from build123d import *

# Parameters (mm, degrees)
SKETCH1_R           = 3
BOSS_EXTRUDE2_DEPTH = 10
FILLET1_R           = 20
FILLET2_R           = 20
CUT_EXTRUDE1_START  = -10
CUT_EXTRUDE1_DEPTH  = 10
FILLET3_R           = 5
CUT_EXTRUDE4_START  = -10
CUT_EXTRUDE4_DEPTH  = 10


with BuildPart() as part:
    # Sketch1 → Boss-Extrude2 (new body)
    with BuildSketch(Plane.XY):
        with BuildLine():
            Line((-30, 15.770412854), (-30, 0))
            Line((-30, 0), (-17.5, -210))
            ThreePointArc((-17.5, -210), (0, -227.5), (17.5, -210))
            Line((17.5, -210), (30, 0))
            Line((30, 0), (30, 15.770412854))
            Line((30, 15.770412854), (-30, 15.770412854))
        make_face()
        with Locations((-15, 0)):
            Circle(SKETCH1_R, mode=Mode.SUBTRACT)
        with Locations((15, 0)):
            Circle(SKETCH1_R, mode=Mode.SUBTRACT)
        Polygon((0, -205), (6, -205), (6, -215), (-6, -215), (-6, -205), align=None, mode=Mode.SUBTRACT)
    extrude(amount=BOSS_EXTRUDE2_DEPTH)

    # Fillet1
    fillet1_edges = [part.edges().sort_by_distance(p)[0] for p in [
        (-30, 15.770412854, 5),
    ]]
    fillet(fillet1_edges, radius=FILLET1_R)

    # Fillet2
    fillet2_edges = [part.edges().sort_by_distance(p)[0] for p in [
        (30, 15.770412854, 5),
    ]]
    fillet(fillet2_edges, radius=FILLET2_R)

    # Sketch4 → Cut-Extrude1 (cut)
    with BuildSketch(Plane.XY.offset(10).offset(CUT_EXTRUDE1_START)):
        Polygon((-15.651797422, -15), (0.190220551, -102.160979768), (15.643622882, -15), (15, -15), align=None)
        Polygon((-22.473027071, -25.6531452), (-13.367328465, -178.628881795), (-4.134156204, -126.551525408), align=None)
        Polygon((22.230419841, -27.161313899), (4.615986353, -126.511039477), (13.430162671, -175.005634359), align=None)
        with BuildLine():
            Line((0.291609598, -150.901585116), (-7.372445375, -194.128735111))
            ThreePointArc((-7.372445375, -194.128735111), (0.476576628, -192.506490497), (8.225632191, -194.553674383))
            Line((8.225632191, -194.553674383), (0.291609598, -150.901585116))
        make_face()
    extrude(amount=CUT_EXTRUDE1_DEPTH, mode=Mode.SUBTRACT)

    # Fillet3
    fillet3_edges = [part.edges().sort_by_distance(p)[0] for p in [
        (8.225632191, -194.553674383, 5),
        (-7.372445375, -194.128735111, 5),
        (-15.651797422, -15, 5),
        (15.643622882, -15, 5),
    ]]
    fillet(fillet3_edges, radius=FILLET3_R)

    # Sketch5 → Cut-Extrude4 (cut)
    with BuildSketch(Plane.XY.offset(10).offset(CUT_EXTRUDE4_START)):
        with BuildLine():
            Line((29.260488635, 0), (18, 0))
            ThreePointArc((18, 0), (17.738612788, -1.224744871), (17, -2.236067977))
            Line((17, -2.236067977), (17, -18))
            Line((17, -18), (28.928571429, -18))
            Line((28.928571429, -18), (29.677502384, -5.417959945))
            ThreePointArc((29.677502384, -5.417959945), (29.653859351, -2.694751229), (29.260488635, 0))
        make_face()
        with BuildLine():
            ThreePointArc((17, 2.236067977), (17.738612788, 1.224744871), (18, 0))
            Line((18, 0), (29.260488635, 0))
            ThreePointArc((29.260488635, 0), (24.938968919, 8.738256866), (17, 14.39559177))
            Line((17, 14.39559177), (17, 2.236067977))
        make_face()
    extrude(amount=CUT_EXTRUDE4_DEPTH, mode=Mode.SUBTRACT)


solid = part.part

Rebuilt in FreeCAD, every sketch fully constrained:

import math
import FreeCAD as App
import Part
import Sketcher

V = App.Vector
Q = App.Units.Quantity


def edges_at(feature, points):
    """Names of the edges that pass closest to the given points."""
    edges = feature.Shape.Edges
    near = lambda p: min(range(len(edges)), key=lambda i: edges[i].distToShape(Part.Vertex(*p))[0])
    return sorted({f"Edge{near(p) + 1}" for p in points})


def add_polygon(sketch, points):
    """Adds a closed chain of lines whose ends are joined by coincident constraints."""
    first, n = sketch.GeometryCount, len(points)
    for a, b in zip(points, points[1:] + points[:1]):
        sketch.addGeometry(Part.LineSegment(App.Vector(*a, 0), App.Vector(*b, 0)), False)
    for i in range(n):
        sketch.addConstraint(Sketcher.Constraint("Coincident", first + i, 2, first + (i + 1) % n, 1))

doc = App.newDocument("Part")
body = doc.addObject("PartDesign::Body", "Body")

sketch1 = body.newObject("Sketcher::SketchObject", "Sketch")
sketch1.AttachmentSupport = (doc.getObject("XY_Plane"), [""])
sketch1.MapMode = "FlatFace"
sketch1.addGeometry(Part.LineSegment(V(-30, 15.8, 0), V(-30, 0, 0)), False)
sketch1.addGeometry(Part.LineSegment(V(-30, 0, 0), V(-17.5, -210, 0)), False)
sketch1.addGeometry(Part.ArcOfCircle(Part.Circle(V(0, -210, 0), V(0, 0, 1), 17.5), math.radians(180), math.radians(360)), False)
sketch1.addGeometry(Part.LineSegment(V(17.5, -210, 0), V(30, 0, 0)), False)
sketch1.addGeometry(Part.LineSegment(V(30, 0, 0), V(30, 15.8, 0)), False)
sketch1.addGeometry(Part.LineSegment(V(30, 15.8, 0), V(-30, 15.8, 0)), False)
add_polygon(sketch1, [(-6, -205), (6, -205), (6, -215), (-6, -215)])
sketch1.addGeometry(Part.Circle(V(-15, 0, 0), V(0, 0, 1), 3), False)
sketch1.addGeometry(Part.Circle(V(15, 0, 0), V(0, 0, 1), 3), False)
sketch1.addConstraint([
    Sketcher.Constraint("Coincident", 0, 2, 1, 1),
    Sketcher.Constraint("Coincident", 1, 2, 2, 1),
    Sketcher.Constraint("Coincident", 2, 2, 3, 1),
    Sketcher.Constraint("Coincident", 3, 2, 4, 1),
    Sketcher.Constraint("Coincident", 4, 2, 5, 1),
    Sketcher.Constraint("Coincident", 5, 2, 0, 1),
    Sketcher.Constraint("Vertical", 0),
    Sketcher.Constraint("Vertical", 4),
    Sketcher.Constraint("Horizontal", 5),
    Sketcher.Constraint("Horizontal", 6),
    Sketcher.Constraint("Vertical", 7),
    Sketcher.Constraint("Horizontal", 8),
    Sketcher.Constraint("Vertical", 9),
    Sketcher.Constraint("Equal", 10, 11),
    Sketcher.Constraint("Symmetric", 10, 3, 11, 3, -1, 1),
    Sketcher.Constraint("Symmetric", 0, 2, 3, 2, -1, 1),
    Sketcher.Constraint("Symmetric", 1, 2, 2, 2, -2),
    Sketcher.Constraint("PointOnObject", 10, 3, -1),
    Sketcher.Constraint("PointOnObject", 0, 2, -1),
    Sketcher.Constraint("Horizontal", 2, 3, 1, 2),
    Sketcher.Constraint("Diameter", 10, Q("6 mm")),
    Sketcher.Constraint("Radius", 2, Q("17.5 mm")),
    Sketcher.Constraint("DistanceX", 5, 2, 5, 1, Q("60 mm")),
    Sketcher.Constraint("DistanceX", 6, 1, 6, 2, Q("12 mm")),
    Sketcher.Constraint("DistanceY", 7, 2, 7, 1, Q("10 mm")),
    Sketcher.Constraint("DistanceY", 2, 3, -1, 1, Q("210 mm")),
    Sketcher.Constraint("DistanceX", 10, 3, -1, 1, Q("15 mm")),
    Sketcher.Constraint("DistanceX", -1, 1, 6, 2, Q("6 mm")),
    Sketcher.Constraint("DistanceY", 6, 2, -1, 1, Q("205 mm")),
    Sketcher.Constraint("DistanceY", 0, 2, 0, 1, Q("15.770413 mm")),
])
pad1 = body.newObject("PartDesign::Pad", "Pad")
pad1.Profile = sketch1
pad1.Length = 10
doc.recompute()

fillet = body.newObject("PartDesign::Fillet", "Fillet")
fillet.Base = (pad1, edges_at(pad1, [(-30, 15.77, 5)]))
fillet.Radius = 20
doc.recompute()

fillet2 = body.newObject("PartDesign::Fillet", "Fillet001")
fillet2.Base = (fillet, edges_at(fillet, [(30, 15.77, 5)]))
fillet2.Radius = 20

sketch2 = body.newObject("Sketcher::SketchObject", "Sketch001")
sketch2.AttachmentSupport = (doc.getObject("XY_Plane"), [""])
sketch2.MapMode = "FlatFace"
add_polygon(sketch2, [(-16, -15), (0, -102), (16, -15)])
add_polygon(sketch2, [(-22, -26), (-13, -179), (-4, -127)])
add_polygon(sketch2, [(22, -27), (5, -127), (13, -175)])
sketch2.addGeometry(Part.LineSegment(V(0, -151, 0), V(-7, -194, 0)), False)
sketch2.addGeometry(Part.ArcOfCircle(Part.Circle(V(0, -210, 0), V(0, 0, 1), 17), math.radians(62), math.radians(115)), False)
sketch2.addGeometry(Part.LineSegment(V(8, -195, 0), V(0, -151, 0)), False)
sketch2.addConstraint([
    Sketcher.Constraint("Coincident", 9, 2, 10, 2),
    Sketcher.Constraint("Coincident", 10, 1, 11, 1),
    Sketcher.Constraint("Coincident", 11, 2, 9, 1),
    Sketcher.Constraint("Horizontal", 2),
    Sketcher.Constraint("PointOnObject", 10, 3, -2),
    Sketcher.Constraint("Parallel", 1, 4),
    Sketcher.Constraint("Parallel", 0, 5),
    Sketcher.Constraint("Parallel", 4, 6),
    Sketcher.Constraint("Parallel", 5, 7),
    Sketcher.Constraint("Parallel", 6, 9),
    Sketcher.Constraint("Parallel", 7, 11),
    Sketcher.Constraint("Radius", 10, Q("17.5 mm")),
    Sketcher.Constraint("DistanceY", 10, 3, -1, 1, Q("210 mm")),
    Sketcher.Constraint("DistanceY", 1, 2, -1, 1, Q("15 mm")),
    Sketcher.Constraint("Distance", 8, Q("148.106001 mm")),
    Sketcher.Constraint("Distance", 3, Q("153.2465 mm")),
    Sketcher.Constraint("Distance", 7, Q("49.289101 mm")),
    Sketcher.Constraint("Distance", 9, Q("43.901301 mm")),
    Sketcher.Constraint("DistanceX", 2, 2, 2, 1, Q("31.29542 mm")),
    Sketcher.Constraint("DistanceX", 5, 2, 3, 2, Q("9.105699 mm")),
    Sketcher.Constraint("DistanceX", 0, 2, 8, 2, Q("22.040199 mm")),
    Sketcher.Constraint("DistanceY", 9, 2, 7, 2, Q("19.123101 mm")),
    Sketcher.Constraint("Distance", 0, Q("88.588972 mm")),
    Sketcher.Constraint("Distance", 4, Q("52.889531 mm")),
    Sketcher.Constraint("Distance", 11, Q("44.367258 mm")),
    Sketcher.Constraint("DistanceX", -1, 1, 0, 2, Q("0.190221 mm")),
    Sketcher.Constraint("DistanceX", 3, 2, -1, 1, Q("13.367328 mm")),
    Sketcher.Constraint("DistanceY", 3, 2, -1, 1, Q("178.628882 mm")),
])
pocket1 = body.newObject("PartDesign::Pocket", "Pocket")
pocket1.Profile = sketch2
pocket1.Length = 10
pocket1.Reversed = True
doc.recompute()

fillet3 = body.newObject("PartDesign::Fillet", "Fillet002")
fillet3.Base = (pocket1, edges_at(pocket1, [
    (8.226, -194.554, 5),
    (-7.372, -194.129, 5),
    (-15.652, -15, 5),
    (15.644, -15, 5),
]))
fillet3.Radius = 5

sketch3 = body.newObject("Sketcher::SketchObject", "Sketch002")
sketch3.AttachmentSupport = (doc.getObject("XY_Plane"), [""])
sketch3.MapMode = "FlatFace"
sketch3.addGeometry([
    Part.ArcOfCircle(Part.Circle(V(15, 0, 0), V(0, 0, 1), 3), math.radians(-48), math.radians(0)),
    Part.LineSegment(V(17, -2.2, 0), V(17, -18, 0)),
    Part.LineSegment(V(17, -18, 0), V(28.9, -18, 0)),
    Part.LineSegment(V(28.9, -18, 0), V(29.7, -5.4, 0)),
    Part.ArcOfCircle(Part.Circle(V(9.7, -4.2, 0), V(0, 0, 1), 20), math.radians(-3.41), math.radians(12.21)),
    Part.ArcOfCircle(Part.Circle(V(9.7, -4.2, 0), V(0, 0, 1), 20), math.radians(12), math.radians(69)),
    Part.LineSegment(V(17, 14.4, 0), V(17, 2.2, 0)),
    Part.ArcOfCircle(Part.Circle(V(15, 0, 0), V(0, 0, 1), 3), math.radians(0), math.radians(48)),
], False)
sketch3.addConstraint([
    Sketcher.Constraint("Coincident", 0, 1, 1, 1),
    Sketcher.Constraint("Coincident", 1, 2, 2, 1),
    Sketcher.Constraint("Coincident", 2, 2, 3, 1),
    Sketcher.Constraint("Tangent", 3, 2, 4, 1),
    Sketcher.Constraint("Tangent", 4, 2, 5, 1),
    Sketcher.Constraint("Coincident", 5, 2, 6, 1),
    Sketcher.Constraint("Coincident", 6, 2, 7, 2),
    Sketcher.Constraint("Tangent", 7, 1, 0, 2),
    Sketcher.Constraint("Vertical", 1),
    Sketcher.Constraint("Horizontal", 2),
    Sketcher.Constraint("Vertical", 6),
    Sketcher.Constraint("Equal", 4, 5),
    Sketcher.Constraint("Equal", 0, 7),
    Sketcher.Constraint("Symmetric", 0, 1, 6, 2, -1),
    Sketcher.Constraint("PointOnObject", 4, 2, -1),
    Sketcher.Constraint("PointOnObject", 7, 1, -1),
    Sketcher.Constraint("Radius", 0, Q("3 mm")),
    Sketcher.Constraint("Radius", 4, Q("20 mm")),
    Sketcher.Constraint("DistanceX", -1, 1, 0, 3, Q("15 mm")),
    Sketcher.Constraint("DistanceX", -1, 1, 0, 1, Q("17 mm")),
    Sketcher.Constraint("DistanceY", 1, 2, -1, 1, Q("18 mm")),
    Sketcher.Constraint("DistanceX", 2, 1, 2, 2, Q("11.928571 mm")),
    Sketcher.Constraint("Distance", 3, Q("12.60431 mm")),
    Sketcher.Constraint("DistanceY", 6, 2, 6, 1, Q("12.159524 mm")),
])
pocket2 = body.newObject("PartDesign::Pocket", "Pocket001")
pocket2.Profile = sketch3
pocket2.Length = 10
pocket2.Reversed = True

doc.recompute()
